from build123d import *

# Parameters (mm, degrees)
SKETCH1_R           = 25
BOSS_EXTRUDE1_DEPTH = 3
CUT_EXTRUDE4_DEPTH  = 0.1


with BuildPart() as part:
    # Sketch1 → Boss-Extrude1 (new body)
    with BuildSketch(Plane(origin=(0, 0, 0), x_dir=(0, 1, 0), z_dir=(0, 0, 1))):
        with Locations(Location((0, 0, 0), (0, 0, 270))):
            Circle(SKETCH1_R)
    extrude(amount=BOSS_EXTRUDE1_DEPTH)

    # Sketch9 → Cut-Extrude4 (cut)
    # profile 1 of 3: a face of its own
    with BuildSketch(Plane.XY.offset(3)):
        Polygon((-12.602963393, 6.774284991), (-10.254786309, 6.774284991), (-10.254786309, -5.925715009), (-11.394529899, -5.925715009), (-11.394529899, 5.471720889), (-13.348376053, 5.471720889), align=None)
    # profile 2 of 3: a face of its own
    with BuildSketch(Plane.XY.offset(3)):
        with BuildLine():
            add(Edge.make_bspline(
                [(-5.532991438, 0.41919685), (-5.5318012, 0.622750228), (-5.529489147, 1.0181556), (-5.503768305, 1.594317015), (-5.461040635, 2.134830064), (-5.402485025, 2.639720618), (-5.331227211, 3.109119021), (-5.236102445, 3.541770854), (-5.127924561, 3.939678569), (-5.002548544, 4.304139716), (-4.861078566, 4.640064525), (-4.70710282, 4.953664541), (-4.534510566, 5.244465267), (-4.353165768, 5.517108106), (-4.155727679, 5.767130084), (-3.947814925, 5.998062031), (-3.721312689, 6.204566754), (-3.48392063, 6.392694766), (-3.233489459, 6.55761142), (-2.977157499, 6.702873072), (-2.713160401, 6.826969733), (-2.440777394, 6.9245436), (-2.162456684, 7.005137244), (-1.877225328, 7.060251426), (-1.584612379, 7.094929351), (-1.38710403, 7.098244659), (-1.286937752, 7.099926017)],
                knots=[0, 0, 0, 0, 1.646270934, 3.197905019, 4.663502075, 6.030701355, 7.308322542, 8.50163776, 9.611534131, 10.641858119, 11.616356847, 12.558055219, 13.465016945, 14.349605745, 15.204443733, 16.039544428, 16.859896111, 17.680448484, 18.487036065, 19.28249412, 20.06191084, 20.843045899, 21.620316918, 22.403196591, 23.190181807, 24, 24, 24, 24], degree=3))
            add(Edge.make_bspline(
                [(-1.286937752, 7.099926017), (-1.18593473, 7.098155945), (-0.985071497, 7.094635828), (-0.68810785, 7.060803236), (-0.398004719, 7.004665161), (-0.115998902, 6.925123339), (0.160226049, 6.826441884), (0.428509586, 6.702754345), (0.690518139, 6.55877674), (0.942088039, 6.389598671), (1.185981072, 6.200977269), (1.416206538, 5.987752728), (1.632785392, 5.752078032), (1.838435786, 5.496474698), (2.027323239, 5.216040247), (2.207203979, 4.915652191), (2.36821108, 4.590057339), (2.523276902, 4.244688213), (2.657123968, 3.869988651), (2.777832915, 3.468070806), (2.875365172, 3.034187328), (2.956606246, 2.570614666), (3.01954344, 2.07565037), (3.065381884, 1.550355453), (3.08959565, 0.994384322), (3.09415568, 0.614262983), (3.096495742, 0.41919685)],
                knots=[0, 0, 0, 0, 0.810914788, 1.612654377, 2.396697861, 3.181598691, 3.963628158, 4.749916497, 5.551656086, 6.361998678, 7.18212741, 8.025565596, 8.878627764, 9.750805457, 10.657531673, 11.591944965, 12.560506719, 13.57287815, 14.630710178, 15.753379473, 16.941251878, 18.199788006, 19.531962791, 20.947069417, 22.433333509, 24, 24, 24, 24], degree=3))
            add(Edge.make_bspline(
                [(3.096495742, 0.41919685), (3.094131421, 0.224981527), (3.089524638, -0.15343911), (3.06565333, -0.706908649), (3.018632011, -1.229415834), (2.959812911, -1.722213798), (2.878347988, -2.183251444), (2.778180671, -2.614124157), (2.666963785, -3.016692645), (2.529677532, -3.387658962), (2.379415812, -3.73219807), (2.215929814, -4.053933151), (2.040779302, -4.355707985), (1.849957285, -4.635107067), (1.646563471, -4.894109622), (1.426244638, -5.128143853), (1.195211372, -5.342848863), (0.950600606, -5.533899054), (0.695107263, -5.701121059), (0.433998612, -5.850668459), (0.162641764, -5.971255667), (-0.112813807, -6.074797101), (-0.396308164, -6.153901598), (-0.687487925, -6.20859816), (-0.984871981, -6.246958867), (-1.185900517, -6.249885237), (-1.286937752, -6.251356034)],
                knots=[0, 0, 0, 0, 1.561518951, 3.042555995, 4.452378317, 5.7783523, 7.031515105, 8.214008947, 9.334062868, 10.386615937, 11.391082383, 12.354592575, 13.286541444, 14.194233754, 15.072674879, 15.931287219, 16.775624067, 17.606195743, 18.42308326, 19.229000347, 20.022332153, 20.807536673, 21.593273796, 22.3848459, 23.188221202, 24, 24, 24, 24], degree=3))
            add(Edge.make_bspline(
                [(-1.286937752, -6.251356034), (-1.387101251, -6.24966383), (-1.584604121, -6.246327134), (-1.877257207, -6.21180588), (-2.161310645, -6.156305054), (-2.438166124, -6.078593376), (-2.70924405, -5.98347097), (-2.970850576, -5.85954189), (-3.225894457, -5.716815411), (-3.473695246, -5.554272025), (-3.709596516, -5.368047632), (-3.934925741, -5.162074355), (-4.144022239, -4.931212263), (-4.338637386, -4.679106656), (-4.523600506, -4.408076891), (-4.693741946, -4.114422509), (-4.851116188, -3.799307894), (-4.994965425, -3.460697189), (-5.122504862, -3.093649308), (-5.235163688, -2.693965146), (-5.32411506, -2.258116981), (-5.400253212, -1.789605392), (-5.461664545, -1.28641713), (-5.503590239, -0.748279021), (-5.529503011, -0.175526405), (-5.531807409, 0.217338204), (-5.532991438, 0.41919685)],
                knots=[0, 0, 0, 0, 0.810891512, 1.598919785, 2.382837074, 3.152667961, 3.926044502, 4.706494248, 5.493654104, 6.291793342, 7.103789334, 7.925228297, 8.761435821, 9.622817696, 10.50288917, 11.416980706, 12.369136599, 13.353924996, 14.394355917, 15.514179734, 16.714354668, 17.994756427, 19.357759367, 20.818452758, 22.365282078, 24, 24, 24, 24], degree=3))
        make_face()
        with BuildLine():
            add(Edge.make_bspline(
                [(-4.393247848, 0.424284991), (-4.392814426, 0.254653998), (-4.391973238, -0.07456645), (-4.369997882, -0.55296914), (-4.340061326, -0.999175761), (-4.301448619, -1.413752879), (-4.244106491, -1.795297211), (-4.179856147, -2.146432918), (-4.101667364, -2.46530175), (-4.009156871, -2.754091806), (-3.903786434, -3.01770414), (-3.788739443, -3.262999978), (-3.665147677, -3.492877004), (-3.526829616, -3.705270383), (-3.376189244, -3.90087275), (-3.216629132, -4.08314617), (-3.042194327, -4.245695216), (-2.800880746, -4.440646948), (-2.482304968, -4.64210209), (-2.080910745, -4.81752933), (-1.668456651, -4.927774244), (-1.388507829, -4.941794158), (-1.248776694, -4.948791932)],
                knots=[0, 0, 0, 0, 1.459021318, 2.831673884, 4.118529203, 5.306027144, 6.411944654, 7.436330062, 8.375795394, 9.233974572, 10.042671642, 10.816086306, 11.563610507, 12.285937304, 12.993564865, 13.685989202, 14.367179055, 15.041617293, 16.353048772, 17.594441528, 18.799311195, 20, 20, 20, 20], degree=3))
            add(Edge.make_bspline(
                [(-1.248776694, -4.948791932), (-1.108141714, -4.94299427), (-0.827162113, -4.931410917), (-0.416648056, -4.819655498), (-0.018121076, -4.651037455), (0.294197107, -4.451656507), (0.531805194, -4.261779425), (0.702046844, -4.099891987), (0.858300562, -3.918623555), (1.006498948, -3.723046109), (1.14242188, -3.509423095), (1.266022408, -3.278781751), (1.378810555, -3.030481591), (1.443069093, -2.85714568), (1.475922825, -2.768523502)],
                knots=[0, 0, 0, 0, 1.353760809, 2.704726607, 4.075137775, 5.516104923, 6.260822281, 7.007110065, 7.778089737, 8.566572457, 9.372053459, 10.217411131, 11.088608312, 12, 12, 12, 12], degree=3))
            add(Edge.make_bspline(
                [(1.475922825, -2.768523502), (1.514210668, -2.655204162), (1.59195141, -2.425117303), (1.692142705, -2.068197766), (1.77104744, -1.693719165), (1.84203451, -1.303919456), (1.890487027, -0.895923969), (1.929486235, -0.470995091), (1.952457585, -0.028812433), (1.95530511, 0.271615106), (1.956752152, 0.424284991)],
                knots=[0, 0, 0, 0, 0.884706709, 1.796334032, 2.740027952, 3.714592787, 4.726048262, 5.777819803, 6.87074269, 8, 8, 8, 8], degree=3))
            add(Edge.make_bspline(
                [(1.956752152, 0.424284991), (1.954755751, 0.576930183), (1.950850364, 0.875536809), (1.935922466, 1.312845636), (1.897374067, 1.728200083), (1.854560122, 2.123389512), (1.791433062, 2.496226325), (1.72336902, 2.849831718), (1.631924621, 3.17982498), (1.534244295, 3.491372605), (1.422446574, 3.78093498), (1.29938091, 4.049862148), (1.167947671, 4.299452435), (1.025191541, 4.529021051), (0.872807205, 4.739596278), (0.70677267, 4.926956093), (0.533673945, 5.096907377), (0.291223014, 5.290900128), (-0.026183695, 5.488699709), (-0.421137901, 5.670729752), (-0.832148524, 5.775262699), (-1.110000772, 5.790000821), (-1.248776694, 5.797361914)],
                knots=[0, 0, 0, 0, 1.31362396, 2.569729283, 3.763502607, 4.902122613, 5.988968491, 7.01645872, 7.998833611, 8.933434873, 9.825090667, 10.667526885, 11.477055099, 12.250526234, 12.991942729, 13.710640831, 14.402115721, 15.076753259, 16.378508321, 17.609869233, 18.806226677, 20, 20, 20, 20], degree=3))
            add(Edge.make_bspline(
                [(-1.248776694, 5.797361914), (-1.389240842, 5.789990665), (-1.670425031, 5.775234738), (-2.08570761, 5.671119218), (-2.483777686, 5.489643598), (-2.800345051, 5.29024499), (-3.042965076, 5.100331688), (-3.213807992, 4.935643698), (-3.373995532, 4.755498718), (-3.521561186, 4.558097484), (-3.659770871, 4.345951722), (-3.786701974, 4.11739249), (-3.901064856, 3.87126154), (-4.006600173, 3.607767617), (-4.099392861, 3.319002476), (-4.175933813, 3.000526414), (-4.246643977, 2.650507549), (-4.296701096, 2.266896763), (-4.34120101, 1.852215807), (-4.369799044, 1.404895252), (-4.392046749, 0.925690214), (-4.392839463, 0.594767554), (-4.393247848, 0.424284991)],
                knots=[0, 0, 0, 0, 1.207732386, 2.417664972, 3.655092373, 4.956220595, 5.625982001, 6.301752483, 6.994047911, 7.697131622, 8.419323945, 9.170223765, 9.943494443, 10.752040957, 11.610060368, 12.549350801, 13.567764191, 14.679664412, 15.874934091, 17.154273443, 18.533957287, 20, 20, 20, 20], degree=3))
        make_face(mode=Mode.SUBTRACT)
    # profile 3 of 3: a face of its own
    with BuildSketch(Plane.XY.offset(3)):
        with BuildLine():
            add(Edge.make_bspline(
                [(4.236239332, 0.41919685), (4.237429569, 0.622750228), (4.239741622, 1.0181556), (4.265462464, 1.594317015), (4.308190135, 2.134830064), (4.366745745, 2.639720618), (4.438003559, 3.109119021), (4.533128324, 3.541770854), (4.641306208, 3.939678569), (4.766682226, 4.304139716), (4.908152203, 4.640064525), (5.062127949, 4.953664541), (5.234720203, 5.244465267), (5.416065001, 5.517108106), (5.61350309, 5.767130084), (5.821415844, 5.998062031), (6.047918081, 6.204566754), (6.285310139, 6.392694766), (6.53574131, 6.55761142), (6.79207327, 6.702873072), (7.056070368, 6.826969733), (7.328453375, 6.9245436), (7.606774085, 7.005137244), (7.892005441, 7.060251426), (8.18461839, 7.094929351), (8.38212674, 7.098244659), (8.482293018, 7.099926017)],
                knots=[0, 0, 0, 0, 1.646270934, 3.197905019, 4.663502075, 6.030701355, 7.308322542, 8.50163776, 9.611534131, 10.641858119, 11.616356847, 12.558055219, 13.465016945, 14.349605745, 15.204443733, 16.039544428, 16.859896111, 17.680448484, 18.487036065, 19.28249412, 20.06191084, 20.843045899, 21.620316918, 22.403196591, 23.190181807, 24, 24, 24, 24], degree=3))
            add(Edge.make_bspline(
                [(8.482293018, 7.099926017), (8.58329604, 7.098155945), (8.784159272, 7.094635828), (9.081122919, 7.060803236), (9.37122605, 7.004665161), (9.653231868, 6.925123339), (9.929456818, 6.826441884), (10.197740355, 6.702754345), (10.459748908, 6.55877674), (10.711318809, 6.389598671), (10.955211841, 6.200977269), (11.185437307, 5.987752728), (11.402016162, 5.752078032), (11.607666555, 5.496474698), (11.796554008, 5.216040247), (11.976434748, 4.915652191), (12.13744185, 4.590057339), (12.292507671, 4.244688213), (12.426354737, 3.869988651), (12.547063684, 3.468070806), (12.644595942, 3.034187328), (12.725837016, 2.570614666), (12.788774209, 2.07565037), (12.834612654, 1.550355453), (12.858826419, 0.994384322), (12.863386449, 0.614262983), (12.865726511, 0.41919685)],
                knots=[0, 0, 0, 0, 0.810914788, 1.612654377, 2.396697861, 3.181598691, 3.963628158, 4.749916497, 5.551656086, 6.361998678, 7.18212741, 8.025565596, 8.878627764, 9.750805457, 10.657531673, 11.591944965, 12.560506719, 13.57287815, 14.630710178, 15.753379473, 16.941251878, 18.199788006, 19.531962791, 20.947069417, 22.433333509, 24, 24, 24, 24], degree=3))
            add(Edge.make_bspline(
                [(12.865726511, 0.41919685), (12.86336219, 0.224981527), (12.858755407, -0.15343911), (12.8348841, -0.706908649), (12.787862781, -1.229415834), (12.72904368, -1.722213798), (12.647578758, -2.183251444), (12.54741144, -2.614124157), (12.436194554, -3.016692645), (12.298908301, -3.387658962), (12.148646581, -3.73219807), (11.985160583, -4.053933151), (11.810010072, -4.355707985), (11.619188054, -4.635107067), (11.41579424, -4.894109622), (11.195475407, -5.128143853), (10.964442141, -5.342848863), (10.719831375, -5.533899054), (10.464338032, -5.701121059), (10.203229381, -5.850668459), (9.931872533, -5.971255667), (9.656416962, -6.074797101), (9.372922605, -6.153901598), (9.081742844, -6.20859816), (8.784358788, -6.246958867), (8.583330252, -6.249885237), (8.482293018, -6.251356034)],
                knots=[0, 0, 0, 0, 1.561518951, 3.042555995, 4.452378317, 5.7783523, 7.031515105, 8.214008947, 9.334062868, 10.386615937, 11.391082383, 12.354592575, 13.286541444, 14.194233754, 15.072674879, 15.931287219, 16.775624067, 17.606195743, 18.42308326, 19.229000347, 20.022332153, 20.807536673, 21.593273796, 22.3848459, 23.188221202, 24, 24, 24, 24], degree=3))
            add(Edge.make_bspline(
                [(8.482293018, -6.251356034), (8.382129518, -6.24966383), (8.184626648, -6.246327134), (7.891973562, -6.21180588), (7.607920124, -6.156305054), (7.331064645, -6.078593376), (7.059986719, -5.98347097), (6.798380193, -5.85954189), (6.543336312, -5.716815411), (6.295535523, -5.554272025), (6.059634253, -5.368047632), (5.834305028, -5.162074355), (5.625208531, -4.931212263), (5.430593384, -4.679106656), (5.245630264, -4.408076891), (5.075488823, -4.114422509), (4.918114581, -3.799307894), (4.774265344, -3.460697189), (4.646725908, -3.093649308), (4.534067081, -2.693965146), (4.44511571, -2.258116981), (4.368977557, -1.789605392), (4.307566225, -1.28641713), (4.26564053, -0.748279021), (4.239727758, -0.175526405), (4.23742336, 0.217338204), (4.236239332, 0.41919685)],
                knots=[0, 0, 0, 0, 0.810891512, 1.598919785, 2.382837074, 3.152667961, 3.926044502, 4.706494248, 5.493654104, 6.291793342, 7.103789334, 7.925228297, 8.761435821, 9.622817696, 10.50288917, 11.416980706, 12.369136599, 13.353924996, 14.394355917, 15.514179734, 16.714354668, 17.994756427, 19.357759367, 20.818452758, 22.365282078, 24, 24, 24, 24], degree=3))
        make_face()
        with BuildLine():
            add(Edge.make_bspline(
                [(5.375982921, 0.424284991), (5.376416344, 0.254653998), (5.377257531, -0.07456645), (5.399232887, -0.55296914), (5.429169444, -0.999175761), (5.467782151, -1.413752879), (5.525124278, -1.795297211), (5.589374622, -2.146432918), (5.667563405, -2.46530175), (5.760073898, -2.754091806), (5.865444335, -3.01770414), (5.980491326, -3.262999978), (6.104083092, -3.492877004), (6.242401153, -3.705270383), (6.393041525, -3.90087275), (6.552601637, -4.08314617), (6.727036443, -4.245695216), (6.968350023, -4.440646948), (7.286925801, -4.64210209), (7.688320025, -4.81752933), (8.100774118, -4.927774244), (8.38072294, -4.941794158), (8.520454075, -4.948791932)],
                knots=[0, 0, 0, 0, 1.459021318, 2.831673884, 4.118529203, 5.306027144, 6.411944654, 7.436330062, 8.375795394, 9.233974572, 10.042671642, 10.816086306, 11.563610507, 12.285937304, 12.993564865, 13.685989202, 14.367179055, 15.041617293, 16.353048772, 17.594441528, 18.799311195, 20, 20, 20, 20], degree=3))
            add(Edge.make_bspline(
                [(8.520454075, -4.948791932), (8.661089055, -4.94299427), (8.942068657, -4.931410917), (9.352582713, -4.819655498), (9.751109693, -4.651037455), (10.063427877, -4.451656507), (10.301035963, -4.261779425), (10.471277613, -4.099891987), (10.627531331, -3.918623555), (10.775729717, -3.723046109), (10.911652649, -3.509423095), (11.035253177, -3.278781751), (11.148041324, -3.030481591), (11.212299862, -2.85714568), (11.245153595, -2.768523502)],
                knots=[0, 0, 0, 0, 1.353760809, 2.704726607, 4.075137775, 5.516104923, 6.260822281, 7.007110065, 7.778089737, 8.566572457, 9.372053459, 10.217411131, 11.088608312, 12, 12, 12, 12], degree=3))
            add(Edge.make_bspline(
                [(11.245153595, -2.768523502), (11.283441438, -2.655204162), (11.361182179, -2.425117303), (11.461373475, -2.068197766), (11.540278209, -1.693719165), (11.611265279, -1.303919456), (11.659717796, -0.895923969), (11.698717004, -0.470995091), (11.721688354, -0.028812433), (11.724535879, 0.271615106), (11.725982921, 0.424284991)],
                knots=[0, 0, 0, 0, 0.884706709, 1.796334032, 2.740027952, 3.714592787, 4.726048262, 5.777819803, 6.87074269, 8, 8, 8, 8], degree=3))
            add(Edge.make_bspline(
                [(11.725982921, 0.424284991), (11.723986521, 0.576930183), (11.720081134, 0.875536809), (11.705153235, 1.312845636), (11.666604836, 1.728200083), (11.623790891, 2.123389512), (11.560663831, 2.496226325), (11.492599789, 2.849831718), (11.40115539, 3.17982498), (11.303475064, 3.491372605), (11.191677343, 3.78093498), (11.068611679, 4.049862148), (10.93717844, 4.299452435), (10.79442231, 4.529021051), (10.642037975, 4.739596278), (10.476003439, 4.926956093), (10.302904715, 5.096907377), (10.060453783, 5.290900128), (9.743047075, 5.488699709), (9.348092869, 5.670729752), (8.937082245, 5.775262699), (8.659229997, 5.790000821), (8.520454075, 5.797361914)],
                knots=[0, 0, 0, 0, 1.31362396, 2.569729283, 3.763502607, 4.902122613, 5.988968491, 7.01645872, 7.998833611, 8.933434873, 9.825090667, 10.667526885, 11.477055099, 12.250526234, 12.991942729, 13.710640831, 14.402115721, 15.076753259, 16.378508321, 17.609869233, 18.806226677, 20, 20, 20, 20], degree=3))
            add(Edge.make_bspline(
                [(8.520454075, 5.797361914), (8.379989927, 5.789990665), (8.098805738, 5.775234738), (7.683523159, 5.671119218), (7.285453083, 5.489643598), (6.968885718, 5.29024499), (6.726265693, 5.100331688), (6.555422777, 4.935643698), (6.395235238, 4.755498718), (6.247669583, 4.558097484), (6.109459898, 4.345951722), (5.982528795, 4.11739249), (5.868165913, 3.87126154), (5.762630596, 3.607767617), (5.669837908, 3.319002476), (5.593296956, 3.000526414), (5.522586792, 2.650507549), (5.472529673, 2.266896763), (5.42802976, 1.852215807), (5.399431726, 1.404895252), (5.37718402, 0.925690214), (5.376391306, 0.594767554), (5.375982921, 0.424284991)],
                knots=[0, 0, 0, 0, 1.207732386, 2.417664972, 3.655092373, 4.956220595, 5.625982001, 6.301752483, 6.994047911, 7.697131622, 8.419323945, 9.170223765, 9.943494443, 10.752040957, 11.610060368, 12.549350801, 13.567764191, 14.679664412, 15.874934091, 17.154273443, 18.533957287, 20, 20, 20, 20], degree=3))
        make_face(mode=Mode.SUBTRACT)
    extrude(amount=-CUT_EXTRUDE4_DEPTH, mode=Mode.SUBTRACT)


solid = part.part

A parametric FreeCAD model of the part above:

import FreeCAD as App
import Part
import Sketcher
from FreeCAD import Vector

doc = App.newDocument("Part")
params = doc.addObject("Spreadsheet::Sheet", "Params")
for row, (alias, value) in enumerate([
    ("sketch1_diameter", "50 mm"),
    ("pad1_length", "3 mm"),
    ("sketch2_height", "12.7 mm"),
    ("pocket1_length", "0.1 mm"),
], start=1):
    params.set(f"A{row}", alias)
    params.set(f"B{row}", "=" + value)
    params.setAlias(f"B{row}", alias)

body = doc.addObject("PartDesign::Body", "Body")

# Sketch on XY plane
sketch1 = body.newObject("Sketcher::SketchObject", "Sketch")
sketch1.AttachmentSupport = (doc.getObject("XY_Plane"), [""])
sketch1.MapMode = "FlatFace"
sketch1.addGeometry(Part.Circle(Vector(0, 0, 0), Vector(0, 0, 1), 25), False)
sketch1.addConstraint([
    Sketcher.Constraint("Coincident", 0, 3, -1, 1),
    Sketcher.Constraint("Diameter", 0, 50.0),
])
sketch1.setExpression("Constraints[1]", "Params.sketch1_diameter")
pad1 = body.newObject("PartDesign::Pad", "Pad")
pad1.Profile = sketch1
pad1.setExpression("Length", "Params.pad1_length")

# Sketch on XY plane
sketch2 = body.newObject("Sketcher::SketchObject", "Sketch001")
sketch2.AttachmentSupport = (doc.getObject("XY_Plane"), [""])
sketch2.MapMode = "FlatFace"
sketch2.AttachmentOffset = App.Placement(Vector(0, 0, 3), App.Rotation())
sketch2.addGeometry([
    Part.LineSegment(Vector(-10.254786, 6.774285, 0), Vector(-12.602963, 6.774285, 0)),  # 0
    Part.LineSegment(Vector(-12.602963, 6.774285, 0), Vector(-13.348376, 5.471721, 0)),  # 1
    Part.LineSegment(Vector(-13.348376, 5.471721, 0), Vector(-11.39453, 5.471721, 0)),  # 2
    Part.LineSegment(Vector(-11.39453, 5.471721, 0), Vector(-11.39453, -5.925715, 0)),  # 3
    Part.LineSegment(Vector(-11.39453, -5.925715, 0), Vector(-10.254786, -5.925715, 0)),  # 4
    Part.LineSegment(Vector(-10.254786, -5.925715, 0), Vector(-10.254786, 6.774285, 0)),  # 5
    Part.BSplineCurve([Vector(-5.532991, 0.419197, 0), Vector(-5.531801, 0.62275, 0), Vector(-5.529489, 1.018156, 0), Vector(-5.503768, 1.594317, 0), Vector(-5.461041, 2.13483, 0), Vector(-5.402485, 2.639721, 0), Vector(-5.331227, 3.109119, 0), Vector(-5.236102, 3.541771, 0), Vector(-5.127925, 3.939679, 0), Vector(-5.002549, 4.30414, 0), Vector(-4.861079, 4.640065, 0), Vector(-4.707103, 4.953665, 0), Vector(-4.534511, 5.244465, 0), Vector(-4.353166, 5.517108, 0), Vector(-4.155728, 5.76713, 0), Vector(-3.947815, 5.998062, 0), Vector(-3.721313, 6.204567, 0), Vector(-3.483921, 6.392695, 0), Vector(-3.233489, 6.557611, 0), Vector(-2.977157, 6.702873, 0), Vector(-2.71316, 6.82697, 0), Vector(-2.440777, 6.924544, 0), Vector(-2.162457, 7.005137, 0), Vector(-1.877225, 7.060251, 0), Vector(-1.584612, 7.094929, 0), Vector(-1.387104, 7.098245, 0), Vector(-1.286938, 7.099926, 0)], [4, 1, 1, 1, 1, 1, 1, 1, 1, 1, 1, 1, 1, 1, 1, 1, 1, 1, 1, 1, 1, 1, 1, 1, 4], [0, 1.646270934, 3.197905019, 4.663502075, 6.030701355, 7.308322542, 8.50163776, 9.611534131, 10.641858119, 11.616356847, 12.558055219, 13.465016945, 14.349605745, 15.204443733, 16.039544428, 16.859896111, 17.680448484, 18.487036065, 19.28249412, 20.06191084, 20.843045899, 21.620316918, 22.403196591, 23.190181807, 24], False, 3, [1, 1, 1, 1, 1, 1, 1, 1, 1, 1, 1, 1, 1, 1, 1, 1, 1, 1, 1, 1, 1, 1, 1, 1, 1, 1, 1], False),  # 6
    Part.BSplineCurve([Vector(-1.286938, -6.251356, 0), Vector(-1.387101, -6.249664, 0), Vector(-1.584604, -6.246327, 0), Vector(-1.877257, -6.211806, 0), Vector(-2.161311, -6.156305, 0), Vector(-2.438166, -6.078593, 0), Vector(-2.709244, -5.983471, 0), Vector(-2.970851, -5.859542, 0), Vector(-3.225894, -5.716815, 0), Vector(-3.473695, -5.554272, 0), Vector(-3.709597, -5.368048, 0), Vector(-3.934926, -5.162074, 0), Vector(-4.144022, -4.931212, 0), Vector(-4.338637, -4.679107, 0), Vector(-4.523601, -4.408077, 0), Vector(-4.693742, -4.114423, 0), Vector(-4.851116, -3.799308, 0), Vector(-4.994965, -3.460697, 0), Vector(-5.122505, -3.093649, 0), Vector(-5.235164, -2.693965, 0), Vector(-5.324115, -2.258117, 0), Vector(-5.400253, -1.789605, 0), Vector(-5.461665, -1.286417, 0), Vector(-5.50359, -0.748279, 0), Vector(-5.529503, -0.175526, 0), Vector(-5.531807, 0.217338, 0), Vector(-5.532991, 0.419197, 0)], [4, 1, 1, 1, 1, 1, 1, 1, 1, 1, 1, 1, 1, 1, 1, 1, 1, 1, 1, 1, 1, 1, 1, 1, 4], [0, 0.810891512, 1.598919785, 2.382837074, 3.152667961, 3.926044502, 4.706494248, 5.493654104, 6.291793342, 7.103789334, 7.925228297, 8.761435821, 9.622817696, 10.50288917, 11.416980706, 12.369136599, 13.353924996, 14.394355917, 15.514179734, 16.714354668, 17.994756427, 19.357759367, 20.818452758, 22.365282078, 24], False, 3, [1, 1, 1, 1, 1, 1, 1, 1, 1, 1, 1, 1, 1, 1, 1, 1, 1, 1, 1, 1, 1, 1, 1, 1, 1, 1, 1], False),  # 7
    Part.BSplineCurve([Vector(3.096496, 0.419197, 0), Vector(3.094131, 0.224982, 0), Vector(3.089525, -0.153439, 0), Vector(3.065653, -0.706909, 0), Vector(3.018632, -1.229416, 0), Vector(2.959813, -1.722214, 0), Vector(2.878348, -2.183251, 0), Vector(2.778181, -2.614124, 0), Vector(2.666964, -3.016693, 0), Vector(2.529678, -3.387659, 0), Vector(2.379416, -3.732198, 0), Vector(2.21593, -4.053933, 0), Vector(2.040779, -4.355708, 0), Vector(1.849957, -4.635107, 0), Vector(1.646563, -4.89411, 0), Vector(1.426245, -5.128144, 0), Vector(1.195211, -5.342849, 0), Vector(0.950601, -5.533899, 0), Vector(0.695107, -5.701121, 0), Vector(0.433999, -5.850668, 0), Vector(0.162642, -5.971256, 0), Vector(-0.112814, -6.074797, 0), Vector(-0.396308, -6.153902, 0), Vector(-0.687488, -6.208598, 0), Vector(-0.984872, -6.246959, 0), Vector(-1.185901, -6.249885, 0), Vector(-1.286938, -6.251356, 0)], [4, 1, 1, 1, 1, 1, 1, 1, 1, 1, 1, 1, 1, 1, 1, 1, 1, 1, 1, 1, 1, 1, 1, 1, 4], [0, 1.561518951, 3.042555995, 4.452378317, 5.7783523, 7.031515105, 8.214008947, 9.334062868, 10.386615937, 11.391082383, 12.354592575, 13.286541444, 14.194233754, 15.072674879, 15.931287219, 16.775624067, 17.606195743, 18.42308326, 19.229000347, 20.022332153, 20.807536673, 21.593273796, 22.3848459, 23.188221202, 24], False, 3, [1, 1, 1, 1, 1, 1, 1, 1, 1, 1, 1, 1, 1, 1, 1, 1, 1, 1, 1, 1, 1, 1, 1, 1, 1, 1, 1], False),  # 8
    Part.BSplineCurve([Vector(-1.286938, 7.099926, 0), Vector(-1.185935, 7.098156, 0), Vector(-0.985071, 7.094636, 0), Vector(-0.688108, 7.060803, 0), Vector(-0.398005, 7.004665, 0), Vector(-0.115999, 6.925123, 0), Vector(0.160226, 6.826442, 0), Vector(0.42851, 6.702754, 0), Vector(0.690518, 6.558777, 0), Vector(0.942088, 6.389599, 0), Vector(1.185981, 6.200977, 0), Vector(1.416207, 5.987753, 0), Vector(1.632785, 5.752078, 0), Vector(1.838436, 5.496475, 0), Vector(2.027323, 5.21604, 0), Vector(2.207204, 4.915652, 0), Vector(2.368211, 4.590057, 0), Vector(2.523277, 4.244688, 0), Vector(2.657124, 3.869989, 0), Vector(2.777833, 3.468071, 0), Vector(2.875365, 3.034187, 0), Vector(2.956606, 2.570615, 0), Vector(3.019543, 2.07565, 0), Vector(3.065382, 1.550355, 0), Vector(3.089596, 0.994384, 0), Vector(3.094156, 0.614263, 0), Vector(3.096496, 0.419197, 0)], [4, 1, 1, 1, 1, 1, 1, 1, 1, 1, 1, 1, 1, 1, 1, 1, 1, 1, 1, 1, 1, 1, 1, 1, 4], [0, 0.810914788, 1.612654377, 2.396697861, 3.181598691, 3.963628158, 4.749916497, 5.551656086, 6.361998678, 7.18212741, 8.025565596, 8.878627764, 9.750805457, 10.657531673, 11.591944965, 12.560506719, 13.57287815, 14.630710178, 15.753379473, 16.941251878, 18.199788006, 19.531962791, 20.947069417, 22.433333509, 24], False, 3, [1, 1, 1, 1, 1, 1, 1, 1, 1, 1, 1, 1, 1, 1, 1, 1, 1, 1, 1, 1, 1, 1, 1, 1, 1, 1, 1], False),  # 9
    Part.BSplineCurve([Vector(-1.248777, 5.797362, 0), Vector(-1.389241, 5.789991, 0), Vector(-1.670425, 5.775235, 0), Vector(-2.085708, 5.671119, 0), Vector(-2.483778, 5.489644, 0), Vector(-2.800345, 5.290245, 0), Vector(-3.042965, 5.100332, 0), Vector(-3.213808, 4.935644, 0), Vector(-3.373996, 4.755499, 0), Vector(-3.521561, 4.558097, 0), Vector(-3.659771, 4.345952, 0), Vector(-3.786702, 4.117392, 0), Vector(-3.901065, 3.871262, 0), Vector(-4.0066, 3.607768, 0), Vector(-4.099393, 3.319002, 0), Vector(-4.175934, 3.000526, 0), Vector(-4.246644, 2.650508, 0), Vector(-4.296701, 2.266897, 0), Vector(-4.341201, 1.852216, 0), Vector(-4.369799, 1.404895, 0), Vector(-4.392047, 0.92569, 0), Vector(-4.392839, 0.594768, 0), Vector(-4.393248, 0.424285, 0)], [4, 1, 1, 1, 1, 1, 1, 1, 1, 1, 1, 1, 1, 1, 1, 1, 1, 1, 1, 1, 4], [0, 1.207732386, 2.417664972, 3.655092373, 4.956220595, 5.625982001, 6.301752483, 6.994047911, 7.697131622, 8.419323945, 9.170223765, 9.943494443, 10.752040957, 11.610060368, 12.549350801, 13.567764191, 14.679664412, 15.874934091, 17.154273443, 18.533957287, 20], False, 3, [1, 1, 1, 1, 1, 1, 1, 1, 1, 1, 1, 1, 1, 1, 1, 1, 1, 1, 1, 1, 1, 1, 1], False),  # 10
    Part.BSplineCurve([Vector(1.956752, 0.424285, 0), Vector(1.954756, 0.57693, 0), Vector(1.95085, 0.875537, 0), Vector(1.935922, 1.312846, 0), Vector(1.897374, 1.7282, 0), Vector(1.85456, 2.12339, 0), Vector(1.791433, 2.496226, 0), Vector(1.723369, 2.849832, 0), Vector(1.631925, 3.179825, 0), Vector(1.534244, 3.491373, 0), Vector(1.422447, 3.780935, 0), Vector(1.299381, 4.049862, 0), Vector(1.167948, 4.299452, 0), Vector(1.025192, 4.529021, 0), Vector(0.872807, 4.739596, 0), Vector(0.706773, 4.926956, 0), Vector(0.533674, 5.096907, 0), Vector(0.291223, 5.2909, 0), Vector(-0.026184, 5.4887, 0), Vector(-0.421138, 5.67073, 0), Vector(-0.832149, 5.775263, 0), Vector(-1.110001, 5.790001, 0), Vector(-1.248777, 5.797362, 0)], [4, 1, 1, 1, 1, 1, 1, 1, 1, 1, 1, 1, 1, 1, 1, 1, 1, 1, 1, 1, 4], [0, 1.31362396, 2.569729283, 3.763502607, 4.902122613, 5.988968491, 7.01645872, 7.998833611, 8.933434873, 9.825090667, 10.667526885, 11.477055099, 12.250526234, 12.991942729, 13.710640831, 14.402115721, 15.076753259, 16.378508321, 17.609869233, 18.806226677, 20], False, 3, [1, 1, 1, 1, 1, 1, 1, 1, 1, 1, 1, 1, 1, 1, 1, 1, 1, 1, 1, 1, 1, 1, 1], False),  # 11
    Part.BSplineCurve([Vector(1.475923, -2.768524, 0), Vector(1.514211, -2.655204, 0), Vector(1.591951, -2.425117, 0), Vector(1.692143, -2.068198, 0), Vector(1.771047, -1.693719, 0), Vector(1.842035, -1.303919, 0), Vector(1.890487, -0.895924, 0), Vector(1.929486, -0.470995, 0), Vector(1.952458, -0.028812, 0), Vector(1.955305, 0.271615, 0), Vector(1.956752, 0.424285, 0)], [4, 1, 1, 1, 1, 1, 1, 1, 4], [0, 0.884706709, 1.796334032, 2.740027952, 3.714592787, 4.726048262, 5.777819803, 6.87074269, 8], False, 3, [1, 1, 1, 1, 1, 1, 1, 1, 1, 1, 1], False),  # 12
    Part.BSplineCurve([Vector(-1.248777, -4.948792, 0), Vector(-1.108142, -4.942994, 0), Vector(-0.827162, -4.931411, 0), Vector(-0.416648, -4.819655, 0), Vector(-0.018121, -4.651037, 0), Vector(0.294197, -4.451657, 0), Vector(0.531805, -4.261779, 0), Vector(0.702047, -4.099892, 0), Vector(0.858301, -3.918624, 0), Vector(1.006499, -3.723046, 0), Vector(1.142422, -3.509423, 0), Vector(1.266022, -3.278782, 0), Vector(1.378811, -3.030482, 0), Vector(1.443069, -2.857146, 0), Vector(1.475923, -2.768524, 0)], [4, 1, 1, 1, 1, 1, 1, 1, 1, 1, 1, 1, 4], [0, 1.353760809, 2.704726607, 4.075137775, 5.516104923, 6.260822281, 7.007110065, 7.778089737, 8.566572457, 9.372053459, 10.217411131, 11.088608312, 12], False, 3, [1, 1, 1, 1, 1, 1, 1, 1, 1, 1, 1, 1, 1, 1, 1], False),  # 13
    Part.BSplineCurve([Vector(-4.393248, 0.424285, 0), Vector(-4.392814, 0.254654, 0), Vector(-4.391973, -0.074566, 0), Vector(-4.369998, -0.552969, 0), Vector(-4.340061, -0.999176, 0), Vector(-4.301449, -1.413753, 0), Vector(-4.244106, -1.795297, 0), Vector(-4.179856, -2.146433, 0), Vector(-4.101667, -2.465302, 0), Vector(-4.009157, -2.754092, 0), Vector(-3.903786, -3.017704, 0), Vector(-3.788739, -3.263, 0), Vector(-3.665148, -3.492877, 0), Vector(-3.52683, -3.70527, 0), Vector(-3.376189, -3.900873, 0), Vector(-3.216629, -4.083146, 0), Vector(-3.042194, -4.245695, 0), Vector(-2.800881, -4.440647, 0), Vector(-2.482305, -4.642102, 0), Vector(-2.080911, -4.817529, 0), Vector(-1.668457, -4.927774, 0), Vector(-1.388508, -4.941794, 0), Vector(-1.248777, -4.948792, 0)], [4, 1, 1, 1, 1, 1, 1, 1, 1, 1, 1, 1, 1, 1, 1, 1, 1, 1, 1, 1, 4], [0, 1.459021318, 2.831673884, 4.118529203, 5.306027144, 6.411944654, 7.436330062, 8.375795394, 9.233974572, 10.042671642, 10.816086306, 11.563610507, 12.285937304, 12.993564865, 13.685989202, 14.367179055, 15.041617293, 16.353048772, 17.594441528, 18.799311195, 20], False, 3, [1, 1, 1, 1, 1, 1, 1, 1, 1, 1, 1, 1, 1, 1, 1, 1, 1, 1, 1, 1, 1, 1, 1], False),  # 14
    Part.BSplineCurve([Vector(4.236239, 0.419197, 0), Vector(4.23743, 0.62275, 0), Vector(4.239742, 1.018156, 0), Vector(4.265462, 1.594317, 0), Vector(4.30819, 2.13483, 0), Vector(4.366746, 2.639721, 0), Vector(4.438004, 3.109119, 0), Vector(4.533128, 3.541771, 0), Vector(4.641306, 3.939679, 0), Vector(4.766682, 4.30414, 0), Vector(4.908152, 4.640065, 0), Vector(5.062128, 4.953665, 0), Vector(5.23472, 5.244465, 0), Vector(5.416065, 5.517108, 0), Vector(5.613503, 5.76713, 0), Vector(5.821416, 5.998062, 0), Vector(6.047918, 6.204567, 0), Vector(6.28531, 6.392695, 0), Vector(6.535741, 6.557611, 0), Vector(6.792073, 6.702873, 0), Vector(7.05607, 6.82697, 0), Vector(7.328453, 6.924544, 0), Vector(7.606774, 7.005137, 0), Vector(7.892005, 7.060251, 0), Vector(8.184618, 7.094929, 0), Vector(8.382127, 7.098245, 0), Vector(8.482293, 7.099926, 0)], [4, 1, 1, 1, 1, 1, 1, 1, 1, 1, 1, 1, 1, 1, 1, 1, 1, 1, 1, 1, 1, 1, 1, 1, 4], [0, 1.646270934, 3.197905019, 4.663502075, 6.030701355, 7.308322542, 8.50163776, 9.611534131, 10.641858119, 11.616356847, 12.558055219, 13.465016945, 14.349605745, 15.204443733, 16.039544428, 16.859896111, 17.680448484, 18.487036065, 19.28249412, 20.06191084, 20.843045899, 21.620316918, 22.403196591, 23.190181807, 24], False, 3, [1, 1, 1, 1, 1, 1, 1, 1, 1, 1, 1, 1, 1, 1, 1, 1, 1, 1, 1, 1, 1, 1, 1, 1, 1, 1, 1], False),  # 15
    Part.BSplineCurve([Vector(8.482293, -6.251356, 0), Vector(8.38213, -6.249664, 0), Vector(8.184627, -6.246327, 0), Vector(7.891974, -6.211806, 0), Vector(7.60792, -6.156305, 0), Vector(7.331065, -6.078593, 0), Vector(7.059987, -5.983471, 0), Vector(6.79838, -5.859542, 0), Vector(6.543336, -5.716815, 0), Vector(6.295536, -5.554272, 0), Vector(6.059634, -5.368048, 0), Vector(5.834305, -5.162074, 0), Vector(5.625209, -4.931212, 0), Vector(5.430593, -4.679107, 0), Vector(5.24563, -4.408077, 0), Vector(5.075489, -4.114423, 0), Vector(4.918115, -3.799308, 0), Vector(4.774265, -3.460697, 0), Vector(4.646726, -3.093649, 0), Vector(4.534067, -2.693965, 0), Vector(4.445116, -2.258117, 0), Vector(4.368978, -1.789605, 0), Vector(4.307566, -1.286417, 0), Vector(4.265641, -0.748279, 0), Vector(4.239728, -0.175526, 0), Vector(4.237423, 0.217338, 0), Vector(4.236239, 0.419197, 0)], [4, 1, 1, 1, 1, 1, 1, 1, 1, 1, 1, 1, 1, 1, 1, 1, 1, 1, 1, 1, 1, 1, 1, 1, 4], [0, 0.810891512, 1.598919785, 2.382837074, 3.152667961, 3.926044502, 4.706494248, 5.493654104, 6.291793342, 7.103789334, 7.925228297, 8.761435821, 9.622817696, 10.50288917, 11.416980706, 12.369136599, 13.353924996, 14.394355917, 15.514179734, 16.714354668, 17.994756427, 19.357759367, 20.818452758, 22.365282078, 24], False, 3, [1, 1, 1, 1, 1, 1, 1, 1, 1, 1, 1, 1, 1, 1, 1, 1, 1, 1, 1, 1, 1, 1, 1, 1, 1, 1, 1], False),  # 16
    Part.BSplineCurve([Vector(12.865727, 0.419197, 0), Vector(12.863362, 0.224982, 0), Vector(12.858755, -0.153439, 0), Vector(12.834884, -0.706909, 0), Vector(12.787863, -1.229416, 0), Vector(12.729044, -1.722214, 0), Vector(12.647579, -2.183251, 0), Vector(12.547411, -2.614124, 0), Vector(12.436195, -3.016693, 0), Vector(12.298908, -3.387659, 0), Vector(12.148647, -3.732198, 0), Vector(11.985161, -4.053933, 0), Vector(11.81001, -4.355708, 0), Vector(11.619188, -4.635107, 0), Vector(11.415794, -4.89411, 0), Vector(11.195475, -5.128144, 0), Vector(10.964442, -5.342849, 0), Vector(10.719831, -5.533899, 0), Vector(10.464338, -5.701121, 0), Vector(10.203229, -5.850668, 0), Vector(9.931873, -5.971256, 0), Vector(9.656417, -6.074797, 0), Vector(9.372923, -6.153902, 0), Vector(9.081743, -6.208598, 0), Vector(8.784359, -6.246959, 0), Vector(8.58333, -6.249885, 0), Vector(8.482293, -6.251356, 0)], [4, 1, 1, 1, 1, 1, 1, 1, 1, 1, 1, 1, 1, 1, 1, 1, 1, 1, 1, 1, 1, 1, 1, 1, 4], [0, 1.561518951, 3.042555995, 4.452378317, 5.7783523, 7.031515105, 8.214008947, 9.334062868, 10.386615937, 11.391082383, 12.354592575, 13.286541444, 14.194233754, 15.072674879, 15.931287219, 16.775624067, 17.606195743, 18.42308326, 19.229000347, 20.022332153, 20.807536673, 21.593273796, 22.3848459, 23.188221202, 24], False, 3, [1, 1, 1, 1, 1, 1, 1, 1, 1, 1, 1, 1, 1, 1, 1, 1, 1, 1, 1, 1, 1, 1, 1, 1, 1, 1, 1], False),  # 17
    Part.BSplineCurve([Vector(8.482293, 7.099926, 0), Vector(8.583296, 7.098156, 0), Vector(8.784159, 7.094636, 0), Vector(9.081123, 7.060803, 0), Vector(9.371226, 7.004665, 0), Vector(9.653232, 6.925123, 0), Vector(9.929457, 6.826442, 0), Vector(10.19774, 6.702754, 0), Vector(10.459749, 6.558777, 0), Vector(10.711319, 6.389599, 0), Vector(10.955212, 6.200977, 0), Vector(11.185437, 5.987753, 0), Vector(11.402016, 5.752078, 0), Vector(11.607667, 5.496475, 0), Vector(11.796554, 5.21604, 0), Vector(11.976435, 4.915652, 0), Vector(12.137442, 4.590057, 0), Vector(12.292508, 4.244688, 0), Vector(12.426355, 3.869989, 0), Vector(12.547064, 3.468071, 0), Vector(12.644596, 3.034187, 0), Vector(12.725837, 2.570615, 0), Vector(12.788774, 2.07565, 0), Vector(12.834613, 1.550355, 0), Vector(12.858826, 0.994384, 0), Vector(12.863386, 0.614263, 0), Vector(12.865727, 0.419197, 0)], [4, 1, 1, 1, 1, 1, 1, 1, 1, 1, 1, 1, 1, 1, 1, 1, 1, 1, 1, 1, 1, 1, 1, 1, 4], [0, 0.810914788, 1.612654377, 2.396697861, 3.181598691, 3.963628158, 4.749916497, 5.551656086, 6.361998678, 7.18212741, 8.025565596, 8.878627764, 9.750805457, 10.657531673, 11.591944965, 12.560506719, 13.57287815, 14.630710178, 15.753379473, 16.941251878, 18.199788006, 19.531962791, 20.947069417, 22.433333509, 24], False, 3, [1, 1, 1, 1, 1, 1, 1, 1, 1, 1, 1, 1, 1, 1, 1, 1, 1, 1, 1, 1, 1, 1, 1, 1, 1, 1, 1], False),  # 18
    Part.BSplineCurve([Vector(8.520454, 5.797362, 0), Vector(8.37999, 5.789991, 0), Vector(8.098806, 5.775235, 0), Vector(7.683523, 5.671119, 0), Vector(7.285453, 5.489644, 0), Vector(6.968886, 5.290245, 0), Vector(6.726266, 5.100332, 0), Vector(6.555423, 4.935644, 0), Vector(6.395235, 4.755499, 0), Vector(6.24767, 4.558097, 0), Vector(6.10946, 4.345952, 0), Vector(5.982529, 4.117392, 0), Vector(5.868166, 3.871262, 0), Vector(5.762631, 3.607768, 0), Vector(5.669838, 3.319002, 0), Vector(5.593297, 3.000526, 0), Vector(5.522587, 2.650508, 0), Vector(5.47253, 2.266897, 0), Vector(5.42803, 1.852216, 0), Vector(5.399432, 1.404895, 0), Vector(5.377184, 0.92569, 0), Vector(5.376391, 0.594768, 0), Vector(5.375983, 0.424285, 0)], [4, 1, 1, 1, 1, 1, 1, 1, 1, 1, 1, 1, 1, 1, 1, 1, 1, 1, 1, 1, 4], [0, 1.207732386, 2.417664972, 3.655092373, 4.956220595, 5.625982001, 6.301752483, 6.994047911, 7.697131622, 8.419323945, 9.170223765, 9.943494443, 10.752040957, 11.610060368, 12.549350801, 13.567764191, 14.679664412, 15.874934091, 17.154273443, 18.533957287, 20], False, 3, [1, 1, 1, 1, 1, 1, 1, 1, 1, 1, 1, 1, 1, 1, 1, 1, 1, 1, 1, 1, 1, 1, 1], False),  # 19
    Part.BSplineCurve([Vector(11.725983, 0.424285, 0), Vector(11.723987, 0.57693, 0), Vector(11.720081, 0.875537, 0), Vector(11.705153, 1.312846, 0), Vector(11.666605, 1.7282, 0), Vector(11.623791, 2.12339, 0), Vector(11.560664, 2.496226, 0), Vector(11.4926, 2.849832, 0), Vector(11.401155, 3.179825, 0), Vector(11.303475, 3.491373, 0), Vector(11.191677, 3.780935, 0), Vector(11.068612, 4.049862, 0), Vector(10.937178, 4.299452, 0), Vector(10.794422, 4.529021, 0), Vector(10.642038, 4.739596, 0), Vector(10.476003, 4.926956, 0), Vector(10.302905, 5.096907, 0), Vector(10.060454, 5.2909, 0), Vector(9.743047, 5.4887, 0), Vector(9.348093, 5.67073, 0), Vector(8.937082, 5.775263, 0), Vector(8.65923, 5.790001, 0), Vector(8.520454, 5.797362, 0)], [4, 1, 1, 1, 1, 1, 1, 1, 1, 1, 1, 1, 1, 1, 1, 1, 1, 1, 1, 1, 4], [0, 1.31362396, 2.569729283, 3.763502607, 4.902122613, 5.988968491, 7.01645872, 7.998833611, 8.933434873, 9.825090667, 10.667526885, 11.477055099, 12.250526234, 12.991942729, 13.710640831, 14.402115721, 15.076753259, 16.378508321, 17.609869233, 18.806226677, 20], False, 3, [1, 1, 1, 1, 1, 1, 1, 1, 1, 1, 1, 1, 1, 1, 1, 1, 1, 1, 1, 1, 1, 1, 1], False),  # 20
    Part.BSplineCurve([Vector(11.245154, -2.768524, 0), Vector(11.283441, -2.655204, 0), Vector(11.361182, -2.425117, 0), Vector(11.461373, -2.068198, 0), Vector(11.540278, -1.693719, 0), Vector(11.611265, -1.303919, 0), Vector(11.659718, -0.895924, 0), Vector(11.698717, -0.470995, 0), Vector(11.721688, -0.028812, 0), Vector(11.724536, 0.271615, 0), Vector(11.725983, 0.424285, 0)], [4, 1, 1, 1, 1, 1, 1, 1, 4], [0, 0.884706709, 1.796334032, 2.740027952, 3.714592787, 4.726048262, 5.777819803, 6.87074269, 8], False, 3, [1, 1, 1, 1, 1, 1, 1, 1, 1, 1, 1], False),  # 21
    Part.BSplineCurve([Vector(8.520454, -4.948792, 0), Vector(8.661089, -4.942994, 0), Vector(8.942069, -4.931411, 0), Vector(9.352583, -4.819655, 0), Vector(9.75111, -4.651037, 0), Vector(10.063428, -4.451657, 0), Vector(10.301036, -4.261779, 0), Vector(10.471278, -4.099892, 0), Vector(10.627531, -3.918624, 0), Vector(10.77573, -3.723046, 0), Vector(10.911653, -3.509423, 0), Vector(11.035253, -3.278782, 0), Vector(11.148041, -3.030482, 0), Vector(11.2123, -2.857146, 0), Vector(11.245154, -2.768524, 0)], [4, 1, 1, 1, 1, 1, 1, 1, 1, 1, 1, 1, 4], [0, 1.353760809, 2.704726607, 4.075137775, 5.516104923, 6.260822281, 7.007110065, 7.778089737, 8.566572457, 9.372053459, 10.217411131, 11.088608312, 12], False, 3, [1, 1, 1, 1, 1, 1, 1, 1, 1, 1, 1, 1, 1, 1, 1], False),  # 22
    Part.BSplineCurve([Vector(5.375983, 0.424285, 0), Vector(5.376416, 0.254654, 0), Vector(5.377258, -0.074566, 0), Vector(5.399233, -0.552969, 0), Vector(5.429169, -0.999176, 0), Vector(5.467782, -1.413753, 0), Vector(5.525124, -1.795297, 0), Vector(5.589375, -2.146433, 0), Vector(5.667563, -2.465302, 0), Vector(5.760074, -2.754092, 0), Vector(5.865444, -3.017704, 0), Vector(5.980491, -3.263, 0), Vector(6.104083, -3.492877, 0), Vector(6.242401, -3.70527, 0), Vector(6.393042, -3.900873, 0), Vector(6.552602, -4.083146, 0), Vector(6.727036, -4.245695, 0), Vector(6.96835, -4.440647, 0), Vector(7.286926, -4.642102, 0), Vector(7.68832, -4.817529, 0), Vector(8.100774, -4.927774, 0), Vector(8.380723, -4.941794, 0), Vector(8.520454, -4.948792, 0)], [4, 1, 1, 1, 1, 1, 1, 1, 1, 1, 1, 1, 1, 1, 1, 1, 1, 1, 1, 1, 4], [0, 1.459021318, 2.831673884, 4.118529203, 5.306027144, 6.411944654, 7.436330062, 8.375795394, 9.233974572, 10.042671642, 10.816086306, 11.563610507, 12.285937304, 12.993564865, 13.685989202, 14.367179055, 15.041617293, 16.353048772, 17.594441528, 18.799311195, 20], False, 3, [1, 1, 1, 1, 1, 1, 1, 1, 1, 1, 1, 1, 1, 1, 1, 1, 1, 1, 1, 1, 1, 1, 1], False),  # 23
], False)
sketch2.addConstraint([
    Sketcher.Constraint("Block", 6),
    Sketcher.Constraint("Block", 7),
    Sketcher.Constraint("Block", 8),
    Sketcher.Constraint("Block", 9),
    Sketcher.Constraint("Block", 10),
    Sketcher.Constraint("Block", 11),
    Sketcher.Constraint("Block", 12),
    Sketcher.Constraint("Block", 13),
    Sketcher.Constraint("Block", 14),
    Sketcher.Constraint("Block", 15),
    Sketcher.Constraint("Block", 16),
    Sketcher.Constraint("Block", 17),
    Sketcher.Constraint("Block", 18),
    Sketcher.Constraint("Block", 19),
    Sketcher.Constraint("Block", 20),
    Sketcher.Constraint("Block", 21),
    Sketcher.Constraint("Block", 22),
    Sketcher.Constraint("Block", 23),
    Sketcher.Constraint("Coincident", 0, 2, 1, 1),
    Sketcher.Constraint("Coincident", 1, 2, 2, 1),
    Sketcher.Constraint("Coincident", 2, 2, 3, 1),
    Sketcher.Constraint("Coincident", 3, 2, 4, 1),
    Sketcher.Constraint("Coincident", 4, 2, 5, 1),
    Sketcher.Constraint("Coincident", 5, 2, 0, 1),
    Sketcher.Constraint("Horizontal", 0),
    Sketcher.Constraint("Horizontal", 2),
    Sketcher.Constraint("Vertical", 3),
    Sketcher.Constraint("Horizontal", 4),
    Sketcher.Constraint("Vertical", 5),
    Sketcher.Constraint("DistanceY", 5, 1, 5, 2, 12.7),
    Sketcher.Constraint("Distance", 1, 1.500771),
    Sketcher.Constraint("DistanceX", 0, 2, 0, 1, 2.348177),
    Sketcher.Constraint("DistanceX", 2, 1, 2, 2, 1.953846),
    Sketcher.Constraint("DistanceX", 4, 1, 4, 2, 1.139744),
    Sketcher.Constraint("DistanceY", -1, 1, 1, 2, 5.471721),
    Sketcher.Constraint("DistanceX", 2, 2, -1, 1, 11.39453),
])
sketch2.setExpression("Constraints[29]", "Params.sketch2_height")
pocket1 = body.newObject("PartDesign::Pocket", "Pocket")
pocket1.Profile = sketch2
pocket1.setExpression("Length", "Params.pocket1_length")

doc.recompute()
